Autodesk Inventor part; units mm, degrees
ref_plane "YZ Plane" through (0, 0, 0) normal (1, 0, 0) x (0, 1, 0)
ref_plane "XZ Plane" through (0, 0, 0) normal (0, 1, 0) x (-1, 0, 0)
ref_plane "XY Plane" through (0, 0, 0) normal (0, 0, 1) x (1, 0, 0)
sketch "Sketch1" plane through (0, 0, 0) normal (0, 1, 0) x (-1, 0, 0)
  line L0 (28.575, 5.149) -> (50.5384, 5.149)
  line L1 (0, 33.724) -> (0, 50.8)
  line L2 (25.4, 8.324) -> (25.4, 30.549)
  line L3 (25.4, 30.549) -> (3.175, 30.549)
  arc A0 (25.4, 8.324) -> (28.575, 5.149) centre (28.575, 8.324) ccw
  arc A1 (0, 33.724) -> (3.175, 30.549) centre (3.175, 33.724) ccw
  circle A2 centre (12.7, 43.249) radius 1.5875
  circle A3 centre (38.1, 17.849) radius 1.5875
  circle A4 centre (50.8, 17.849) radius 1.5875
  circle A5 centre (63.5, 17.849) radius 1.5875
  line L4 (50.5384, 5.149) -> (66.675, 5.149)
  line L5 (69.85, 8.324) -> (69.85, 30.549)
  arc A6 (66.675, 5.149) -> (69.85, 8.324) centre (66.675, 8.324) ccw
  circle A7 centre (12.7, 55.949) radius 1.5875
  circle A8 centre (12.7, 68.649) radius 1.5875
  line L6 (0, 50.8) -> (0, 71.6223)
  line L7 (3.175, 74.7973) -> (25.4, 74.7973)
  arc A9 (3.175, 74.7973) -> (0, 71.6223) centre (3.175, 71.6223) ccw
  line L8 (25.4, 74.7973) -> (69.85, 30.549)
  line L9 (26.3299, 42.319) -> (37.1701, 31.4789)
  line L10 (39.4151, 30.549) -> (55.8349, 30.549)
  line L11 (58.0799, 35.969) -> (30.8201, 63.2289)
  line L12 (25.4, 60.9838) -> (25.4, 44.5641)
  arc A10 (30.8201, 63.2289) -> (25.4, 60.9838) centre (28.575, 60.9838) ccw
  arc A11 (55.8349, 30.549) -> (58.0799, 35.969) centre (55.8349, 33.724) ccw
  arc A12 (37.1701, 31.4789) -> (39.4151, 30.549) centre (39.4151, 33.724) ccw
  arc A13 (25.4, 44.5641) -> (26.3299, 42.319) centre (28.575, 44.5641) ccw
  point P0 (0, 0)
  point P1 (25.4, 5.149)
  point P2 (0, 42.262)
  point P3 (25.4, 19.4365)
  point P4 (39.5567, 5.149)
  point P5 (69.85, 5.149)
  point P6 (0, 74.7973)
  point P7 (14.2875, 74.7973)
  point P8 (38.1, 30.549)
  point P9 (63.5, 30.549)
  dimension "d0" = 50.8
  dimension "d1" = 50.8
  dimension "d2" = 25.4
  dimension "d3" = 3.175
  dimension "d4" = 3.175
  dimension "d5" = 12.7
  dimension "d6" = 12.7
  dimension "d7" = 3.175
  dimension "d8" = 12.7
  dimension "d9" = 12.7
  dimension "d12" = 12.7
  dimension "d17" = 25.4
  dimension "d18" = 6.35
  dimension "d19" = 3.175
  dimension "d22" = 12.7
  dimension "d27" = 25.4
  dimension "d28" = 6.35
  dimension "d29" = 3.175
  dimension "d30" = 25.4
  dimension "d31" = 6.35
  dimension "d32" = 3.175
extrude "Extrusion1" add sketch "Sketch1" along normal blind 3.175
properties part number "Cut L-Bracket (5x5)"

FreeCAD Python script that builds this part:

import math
import FreeCAD as App
import Part
import Sketcher
from FreeCAD import Vector
Q = App.Units.Quantity

doc = App.newDocument("Part")
body = doc.addObject("PartDesign::Body", "Body")

# Sketch on XZ plane
sketch1 = doc.addObject("Sketcher::SketchObject", "Sketch")
body.addObject(sketch1)
sketch1.AttachmentSupport = (doc.XZ_Plane, [""])
sketch1.MapMode = "FlatFace"
sketch1.addGeometry([
    Part.ArcOfCircle(Part.Circle(Vector(-28.6, 8.3, 0), Vector(0, 0, 1), 3.2), math.radians(-90), math.radians(0)),  # 0
    Part.LineSegment(Vector(-28.6, 5.1, 0), Vector(-66.7, 5.1, 0)),  # 1
    Part.ArcOfCircle(Part.Circle(Vector(-66.7, 8.3, 0), Vector(0, 0, 1), 3.2), math.radians(180), math.radians(270)),  # 2
    Part.LineSegment(Vector(-69.8, 8.3, 0), Vector(-69.8, 30.5, 0)),  # 3
    Part.LineSegment(Vector(-69.8, 30.5, 0), Vector(-25.4, 74.8, 0)),  # 4
    Part.LineSegment(Vector(-25.4, 74.8, 0), Vector(-3.2, 74.8, 0)),  # 5
    Part.ArcOfCircle(Part.Circle(Vector(-3.2, 71.6, 0), Vector(0, 0, 1), 3.2), math.radians(0), math.radians(90)),  # 6
    Part.LineSegment(Vector(0, 71.6, 0), Vector(0, 33.7, 0)),  # 7
    Part.ArcOfCircle(Part.Circle(Vector(-3.2, 33.7, 0), Vector(0, 0, 1), 3.2), math.radians(-90), math.radians(0)),  # 8
    Part.LineSegment(Vector(-3.2, 30.5, 0), Vector(-25.4, 30.5, 0)),  # 9
    Part.LineSegment(Vector(-25.4, 30.5, 0), Vector(-25.4, 8.3, 0)),  # 10
    Part.Circle(Vector(-38.1, 17.8, 0), Vector(0, 0, 1), 1.6),  # 11
    Part.Circle(Vector(-50.8, 17.8, 0), Vector(0, 0, 1), 1.6),  # 12
    Part.Circle(Vector(-63.5, 17.8, 0), Vector(0, 0, 1), 1.6),  # 13
    Part.Circle(Vector(-12.7, 43.2, 0), Vector(0, 0, 1), 1.6),  # 14
    Part.Circle(Vector(-12.7, 55.9, 0), Vector(0, 0, 1), 1.6),  # 15
    Part.Circle(Vector(-12.7, 68.6, 0), Vector(0, 0, 1), 1.6),  # 16
    Part.LineSegment(Vector(-37.2, 31.5, 0), Vector(-26.3, 42.3, 0)),  # 17
    Part.ArcOfCircle(Part.Circle(Vector(-28.6, 44.6, 0), Vector(0, 0, 1), 3.2), math.radians(-45), math.radians(0)),  # 18
    Part.LineSegment(Vector(-25.4, 44.6, 0), Vector(-25.4, 61, 0)),  # 19
    Part.ArcOfCircle(Part.Circle(Vector(-28.6, 61, 0), Vector(0, 0, 1), 3.2), math.radians(0), math.radians(135)),  # 20
    Part.LineSegment(Vector(-30.8, 63.2, 0), Vector(-58.1, 36, 0)),  # 21
    Part.ArcOfCircle(Part.Circle(Vector(-55.8, 33.7, 0), Vector(0, 0, 1), 3.2), math.radians(135), math.radians(270)),  # 22
    Part.LineSegment(Vector(-55.8, 30.5, 0), Vector(-39.4, 30.5, 0)),  # 23
    Part.ArcOfCircle(Part.Circle(Vector(-39.4, 33.7, 0), Vector(0, 0, 1), 3.2), math.radians(-90), math.radians(-45)),  # 24
], False)
sketch1.addConstraint([
    Sketcher.Constraint("Tangent", 0, 1, 1, 1),
    Sketcher.Constraint("Tangent", 1, 2, 2, 2),
    Sketcher.Constraint("Tangent", 2, 1, 3, 1),
    Sketcher.Constraint("Coincident", 3, 2, 4, 1),
    Sketcher.Constraint("Coincident", 4, 2, 5, 1),
    Sketcher.Constraint("Tangent", 5, 2, 6, 2),
    Sketcher.Constraint("Tangent", 6, 1, 7, 1),
    Sketcher.Constraint("Tangent", 7, 2, 8, 2),
    Sketcher.Constraint("Tangent", 8, 1, 9, 1),
    Sketcher.Constraint("Coincident", 9, 2, 10, 1),
    Sketcher.Constraint("Tangent", 10, 2, 0, 2),
    Sketcher.Constraint("Tangent", 17, 2, 18, 1),
    Sketcher.Constraint("Tangent", 18, 2, 19, 1),
    Sketcher.Constraint("Tangent", 19, 2, 20, 1),
    Sketcher.Constraint("Tangent", 20, 2, 21, 1),
    Sketcher.Constraint("Tangent", 21, 2, 22, 1),
    Sketcher.Constraint("Tangent", 22, 2, 23, 1),
    Sketcher.Constraint("Tangent", 23, 2, 24, 1),
    Sketcher.Constraint("Tangent", 24, 2, 17, 1),
    Sketcher.Constraint("Horizontal", 1),
    Sketcher.Constraint("Vertical", 3),
    Sketcher.Constraint("Horizontal", 5),
    Sketcher.Constraint("Vertical", 7),
    Sketcher.Constraint("Horizontal", 9),
    Sketcher.Constraint("Vertical", 10),
    Sketcher.Constraint("Vertical", 19),
    Sketcher.Constraint("Horizontal", 23),
    Sketcher.Constraint("Equal", 0, 2),
    Sketcher.Constraint("Equal", 2, 6),
    Sketcher.Constraint("Equal", 6, 8),
    Sketcher.Constraint("Equal", 11, 12),
    Sketcher.Constraint("Equal", 12, 13),
    Sketcher.Constraint("Equal", 13, 14),
    Sketcher.Constraint("Equal", 14, 15),
    Sketcher.Constraint("Equal", 15, 16),
    Sketcher.Constraint("Equal", 8, 18),
    Sketcher.Constraint("Equal", 18, 20),
    Sketcher.Constraint("Equal", 20, 22),
    Sketcher.Constraint("Equal", 22, 24),
    Sketcher.Constraint("PointOnObject", 6, 1, -2),
    Sketcher.Constraint("Parallel", 17, 21),
    Sketcher.Constraint("Horizontal", 11, 3, 12, 3),
    Sketcher.Constraint("Horizontal", 12, 3, 13, 3),
    Sketcher.Constraint("Horizontal", 8, 3, 22, 3),
    Sketcher.Constraint("Horizontal", 3, 2, 8, 1),
    Sketcher.Constraint("Vertical", 14, 3, 15, 3),
    Sketcher.Constraint("Vertical", 15, 3, 16, 3),
    Sketcher.Constraint("Vertical", 0, 3, 18, 3),
    Sketcher.Constraint("Vertical", 4, 2, 9, 2),
    Sketcher.Constraint("Equal", 9, 3),
    Sketcher.Constraint("Equal", 23, 19),
    Sketcher.Constraint("Diameter", 11, Q("0.125 in")),
    Sketcher.Constraint("DistanceX", 12, 3, -1, 1, Q("2 in")),
    Sketcher.Constraint("DistanceX", 4, 2, -1, 1, Q("1 in")),
    Sketcher.Constraint("Radius", 0, Q("0.125 in")),
    Sketcher.Constraint("DistanceX", 13, 3, 11, 3, Q("1 in")),
    Sketcher.Constraint("DistanceX", 11, 3, 14, 3, Q("1 in")),
    Sketcher.Constraint("DistanceY", 11, 3, 14, 3, Q("1 in")),
    Sketcher.Constraint("DistanceY", 14, 3, 16, 3, Q("1 in")),
    Sketcher.Constraint("DistanceY", 8, 1, 15, 3, Q("1 in")),
    Sketcher.Constraint("DistanceX", 14, 3, -1, 1, Q("0.5 in")),
    Sketcher.Constraint("DistanceY", 14, 3, 15, 3, Q("0.5 in")),
    Sketcher.Constraint("DistanceX", 2, 1, 13, 3, Q("0.25 in")),
    Sketcher.Constraint("Angle", 4, Q("44.8697 deg")),
    Sketcher.Constraint("DistanceX", 23, 1, 23, 2, Q("16.4198 mm")),
    Sketcher.Constraint("DistanceY", -1, 1, 18, 3, Q("1.7545 in")),
    Sketcher.Constraint("DistanceX", 21, 2, -1, 1, Q("2.2866 in")),
])
pad1 = doc.addObject("PartDesign::Pad", "Pad")
body.addObject(pad1)
pad1.Profile = sketch1
pad1.Length = Q("0.125 in")
pad1.Reversed = True

doc.recompute()
